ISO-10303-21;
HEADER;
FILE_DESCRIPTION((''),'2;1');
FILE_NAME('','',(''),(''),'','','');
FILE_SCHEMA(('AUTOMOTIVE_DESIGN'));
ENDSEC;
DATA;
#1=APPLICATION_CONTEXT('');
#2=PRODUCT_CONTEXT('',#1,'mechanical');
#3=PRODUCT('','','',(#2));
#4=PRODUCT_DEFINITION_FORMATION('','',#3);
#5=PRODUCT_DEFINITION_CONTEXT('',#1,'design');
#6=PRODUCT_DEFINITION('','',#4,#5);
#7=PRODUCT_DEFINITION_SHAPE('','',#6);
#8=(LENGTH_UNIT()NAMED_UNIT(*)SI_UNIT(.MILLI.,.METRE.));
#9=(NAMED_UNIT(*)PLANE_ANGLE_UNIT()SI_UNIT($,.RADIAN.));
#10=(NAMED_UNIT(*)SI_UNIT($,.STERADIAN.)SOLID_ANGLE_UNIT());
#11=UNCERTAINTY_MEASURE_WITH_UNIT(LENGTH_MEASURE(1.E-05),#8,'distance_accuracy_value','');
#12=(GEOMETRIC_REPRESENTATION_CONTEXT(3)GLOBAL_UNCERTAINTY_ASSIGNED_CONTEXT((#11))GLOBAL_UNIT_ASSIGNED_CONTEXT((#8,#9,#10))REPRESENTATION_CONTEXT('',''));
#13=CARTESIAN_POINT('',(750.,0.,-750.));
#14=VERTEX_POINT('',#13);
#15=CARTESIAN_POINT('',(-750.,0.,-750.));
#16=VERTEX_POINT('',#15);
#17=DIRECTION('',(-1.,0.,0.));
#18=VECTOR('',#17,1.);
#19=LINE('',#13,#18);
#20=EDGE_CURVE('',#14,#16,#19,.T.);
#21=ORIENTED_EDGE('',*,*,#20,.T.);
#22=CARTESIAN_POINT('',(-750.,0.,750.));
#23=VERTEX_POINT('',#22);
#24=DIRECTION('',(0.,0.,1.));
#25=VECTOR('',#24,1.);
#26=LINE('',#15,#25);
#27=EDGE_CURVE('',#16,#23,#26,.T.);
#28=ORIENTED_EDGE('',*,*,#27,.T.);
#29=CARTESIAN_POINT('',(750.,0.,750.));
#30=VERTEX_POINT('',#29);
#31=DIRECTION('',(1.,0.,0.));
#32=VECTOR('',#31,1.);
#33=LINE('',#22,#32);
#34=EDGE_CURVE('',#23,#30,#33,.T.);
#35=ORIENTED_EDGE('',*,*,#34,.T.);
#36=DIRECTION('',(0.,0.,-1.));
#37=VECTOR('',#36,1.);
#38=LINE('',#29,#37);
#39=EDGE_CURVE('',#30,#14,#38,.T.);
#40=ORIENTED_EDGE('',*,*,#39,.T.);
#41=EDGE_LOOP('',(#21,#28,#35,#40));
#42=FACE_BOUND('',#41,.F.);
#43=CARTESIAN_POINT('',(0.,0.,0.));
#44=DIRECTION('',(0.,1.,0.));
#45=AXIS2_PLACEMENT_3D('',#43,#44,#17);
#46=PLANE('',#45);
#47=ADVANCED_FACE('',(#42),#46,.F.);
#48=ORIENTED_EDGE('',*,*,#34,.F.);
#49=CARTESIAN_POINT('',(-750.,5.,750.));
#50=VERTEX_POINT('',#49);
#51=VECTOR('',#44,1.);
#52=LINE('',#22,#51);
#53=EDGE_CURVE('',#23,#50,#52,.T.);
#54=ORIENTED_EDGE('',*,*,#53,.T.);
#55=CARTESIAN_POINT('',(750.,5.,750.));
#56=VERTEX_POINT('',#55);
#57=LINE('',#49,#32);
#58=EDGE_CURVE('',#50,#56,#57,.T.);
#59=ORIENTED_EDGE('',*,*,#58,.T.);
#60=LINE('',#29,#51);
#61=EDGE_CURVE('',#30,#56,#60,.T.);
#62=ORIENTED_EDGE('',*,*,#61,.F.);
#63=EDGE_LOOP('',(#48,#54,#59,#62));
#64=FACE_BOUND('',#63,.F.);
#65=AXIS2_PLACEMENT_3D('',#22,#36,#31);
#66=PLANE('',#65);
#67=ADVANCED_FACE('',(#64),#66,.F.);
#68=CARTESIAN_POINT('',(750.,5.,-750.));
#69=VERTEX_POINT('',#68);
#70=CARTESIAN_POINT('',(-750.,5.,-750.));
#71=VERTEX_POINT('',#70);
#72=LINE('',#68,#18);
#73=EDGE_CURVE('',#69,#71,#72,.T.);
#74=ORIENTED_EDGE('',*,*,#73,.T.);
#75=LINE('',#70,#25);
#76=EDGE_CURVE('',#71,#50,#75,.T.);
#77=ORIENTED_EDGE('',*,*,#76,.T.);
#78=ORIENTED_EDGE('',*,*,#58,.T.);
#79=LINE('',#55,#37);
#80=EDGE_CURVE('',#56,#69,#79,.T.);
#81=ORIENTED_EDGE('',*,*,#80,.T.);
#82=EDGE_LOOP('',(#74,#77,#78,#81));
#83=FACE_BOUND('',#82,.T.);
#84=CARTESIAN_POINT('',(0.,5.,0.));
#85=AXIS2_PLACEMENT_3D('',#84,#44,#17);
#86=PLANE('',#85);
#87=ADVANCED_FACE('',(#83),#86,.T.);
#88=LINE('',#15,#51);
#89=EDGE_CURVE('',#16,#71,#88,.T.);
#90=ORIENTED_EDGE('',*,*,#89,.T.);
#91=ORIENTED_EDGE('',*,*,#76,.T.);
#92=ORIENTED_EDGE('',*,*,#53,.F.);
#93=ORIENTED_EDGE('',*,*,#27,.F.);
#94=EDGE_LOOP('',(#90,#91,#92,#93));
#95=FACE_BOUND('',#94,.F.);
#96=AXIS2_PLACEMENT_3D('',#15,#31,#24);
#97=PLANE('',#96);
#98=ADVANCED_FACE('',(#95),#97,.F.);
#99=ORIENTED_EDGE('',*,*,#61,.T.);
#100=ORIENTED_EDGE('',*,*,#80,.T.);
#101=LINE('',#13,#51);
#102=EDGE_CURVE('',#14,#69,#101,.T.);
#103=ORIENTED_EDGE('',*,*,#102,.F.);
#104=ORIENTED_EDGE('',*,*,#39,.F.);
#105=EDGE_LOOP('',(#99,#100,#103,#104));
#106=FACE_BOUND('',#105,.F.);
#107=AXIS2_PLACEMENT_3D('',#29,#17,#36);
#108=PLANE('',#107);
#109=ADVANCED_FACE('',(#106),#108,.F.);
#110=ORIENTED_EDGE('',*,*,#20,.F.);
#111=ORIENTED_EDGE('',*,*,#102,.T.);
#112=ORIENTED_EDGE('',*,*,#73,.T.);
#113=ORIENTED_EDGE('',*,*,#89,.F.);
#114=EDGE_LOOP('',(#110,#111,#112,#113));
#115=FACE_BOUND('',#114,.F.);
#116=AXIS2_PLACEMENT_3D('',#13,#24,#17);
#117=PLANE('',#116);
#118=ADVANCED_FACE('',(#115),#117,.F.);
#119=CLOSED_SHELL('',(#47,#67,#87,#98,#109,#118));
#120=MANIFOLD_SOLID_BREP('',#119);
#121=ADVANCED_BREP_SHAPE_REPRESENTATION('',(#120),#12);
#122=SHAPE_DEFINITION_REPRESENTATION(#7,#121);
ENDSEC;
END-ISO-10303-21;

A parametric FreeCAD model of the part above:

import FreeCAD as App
import Part
import Sketcher
Q = App.Units.Quantity

doc = App.newDocument("Part")
body = doc.addObject("PartDesign::Body", "Body")

sketch1 = body.newObject("Sketcher::SketchObject", "Sketch")
sketch1.AttachmentSupport = (doc.getObject("XZ_Plane"), [""])
sketch1.MapMode = "FlatFace"
sketch1.addGeometry([
    Part.LineSegment(App.Vector(-750, -750, 0), App.Vector(-750, 750, 0)),
    Part.LineSegment(App.Vector(-750, 750, 0), App.Vector(750, 750, 0)),
    Part.LineSegment(App.Vector(750, 750, 0), App.Vector(750, -750, 0)),
    Part.LineSegment(App.Vector(750, -750, 0), App.Vector(-750, -750, 0)),
], False)
sketch1.addConstraint([
    Sketcher.Constraint("Coincident", 0, 2, 1, 1),
    Sketcher.Constraint("Coincident", 1, 2, 2, 1),
    Sketcher.Constraint("Coincident", 2, 2, 3, 1),
    Sketcher.Constraint("Coincident", 3, 2, 0, 1),
    Sketcher.Constraint("Vertical", 0),
    Sketcher.Constraint("Horizontal", 1),
    Sketcher.Constraint("Vertical", 2),
    Sketcher.Constraint("Horizontal", 3),
    Sketcher.Constraint("Symmetric", 0, 2, 2, 2, -1, 1),
    Sketcher.Constraint("Equal", 3, 0),
    Sketcher.Constraint("DistanceX", 1, 1, 1, 2, Q("1500 mm")),
])
pad1 = body.newObject("PartDesign::Pad", "Pad")
pad1.Profile = sketch1
pad1.Length = 5
pad1.Reversed = True

doc.recompute()
